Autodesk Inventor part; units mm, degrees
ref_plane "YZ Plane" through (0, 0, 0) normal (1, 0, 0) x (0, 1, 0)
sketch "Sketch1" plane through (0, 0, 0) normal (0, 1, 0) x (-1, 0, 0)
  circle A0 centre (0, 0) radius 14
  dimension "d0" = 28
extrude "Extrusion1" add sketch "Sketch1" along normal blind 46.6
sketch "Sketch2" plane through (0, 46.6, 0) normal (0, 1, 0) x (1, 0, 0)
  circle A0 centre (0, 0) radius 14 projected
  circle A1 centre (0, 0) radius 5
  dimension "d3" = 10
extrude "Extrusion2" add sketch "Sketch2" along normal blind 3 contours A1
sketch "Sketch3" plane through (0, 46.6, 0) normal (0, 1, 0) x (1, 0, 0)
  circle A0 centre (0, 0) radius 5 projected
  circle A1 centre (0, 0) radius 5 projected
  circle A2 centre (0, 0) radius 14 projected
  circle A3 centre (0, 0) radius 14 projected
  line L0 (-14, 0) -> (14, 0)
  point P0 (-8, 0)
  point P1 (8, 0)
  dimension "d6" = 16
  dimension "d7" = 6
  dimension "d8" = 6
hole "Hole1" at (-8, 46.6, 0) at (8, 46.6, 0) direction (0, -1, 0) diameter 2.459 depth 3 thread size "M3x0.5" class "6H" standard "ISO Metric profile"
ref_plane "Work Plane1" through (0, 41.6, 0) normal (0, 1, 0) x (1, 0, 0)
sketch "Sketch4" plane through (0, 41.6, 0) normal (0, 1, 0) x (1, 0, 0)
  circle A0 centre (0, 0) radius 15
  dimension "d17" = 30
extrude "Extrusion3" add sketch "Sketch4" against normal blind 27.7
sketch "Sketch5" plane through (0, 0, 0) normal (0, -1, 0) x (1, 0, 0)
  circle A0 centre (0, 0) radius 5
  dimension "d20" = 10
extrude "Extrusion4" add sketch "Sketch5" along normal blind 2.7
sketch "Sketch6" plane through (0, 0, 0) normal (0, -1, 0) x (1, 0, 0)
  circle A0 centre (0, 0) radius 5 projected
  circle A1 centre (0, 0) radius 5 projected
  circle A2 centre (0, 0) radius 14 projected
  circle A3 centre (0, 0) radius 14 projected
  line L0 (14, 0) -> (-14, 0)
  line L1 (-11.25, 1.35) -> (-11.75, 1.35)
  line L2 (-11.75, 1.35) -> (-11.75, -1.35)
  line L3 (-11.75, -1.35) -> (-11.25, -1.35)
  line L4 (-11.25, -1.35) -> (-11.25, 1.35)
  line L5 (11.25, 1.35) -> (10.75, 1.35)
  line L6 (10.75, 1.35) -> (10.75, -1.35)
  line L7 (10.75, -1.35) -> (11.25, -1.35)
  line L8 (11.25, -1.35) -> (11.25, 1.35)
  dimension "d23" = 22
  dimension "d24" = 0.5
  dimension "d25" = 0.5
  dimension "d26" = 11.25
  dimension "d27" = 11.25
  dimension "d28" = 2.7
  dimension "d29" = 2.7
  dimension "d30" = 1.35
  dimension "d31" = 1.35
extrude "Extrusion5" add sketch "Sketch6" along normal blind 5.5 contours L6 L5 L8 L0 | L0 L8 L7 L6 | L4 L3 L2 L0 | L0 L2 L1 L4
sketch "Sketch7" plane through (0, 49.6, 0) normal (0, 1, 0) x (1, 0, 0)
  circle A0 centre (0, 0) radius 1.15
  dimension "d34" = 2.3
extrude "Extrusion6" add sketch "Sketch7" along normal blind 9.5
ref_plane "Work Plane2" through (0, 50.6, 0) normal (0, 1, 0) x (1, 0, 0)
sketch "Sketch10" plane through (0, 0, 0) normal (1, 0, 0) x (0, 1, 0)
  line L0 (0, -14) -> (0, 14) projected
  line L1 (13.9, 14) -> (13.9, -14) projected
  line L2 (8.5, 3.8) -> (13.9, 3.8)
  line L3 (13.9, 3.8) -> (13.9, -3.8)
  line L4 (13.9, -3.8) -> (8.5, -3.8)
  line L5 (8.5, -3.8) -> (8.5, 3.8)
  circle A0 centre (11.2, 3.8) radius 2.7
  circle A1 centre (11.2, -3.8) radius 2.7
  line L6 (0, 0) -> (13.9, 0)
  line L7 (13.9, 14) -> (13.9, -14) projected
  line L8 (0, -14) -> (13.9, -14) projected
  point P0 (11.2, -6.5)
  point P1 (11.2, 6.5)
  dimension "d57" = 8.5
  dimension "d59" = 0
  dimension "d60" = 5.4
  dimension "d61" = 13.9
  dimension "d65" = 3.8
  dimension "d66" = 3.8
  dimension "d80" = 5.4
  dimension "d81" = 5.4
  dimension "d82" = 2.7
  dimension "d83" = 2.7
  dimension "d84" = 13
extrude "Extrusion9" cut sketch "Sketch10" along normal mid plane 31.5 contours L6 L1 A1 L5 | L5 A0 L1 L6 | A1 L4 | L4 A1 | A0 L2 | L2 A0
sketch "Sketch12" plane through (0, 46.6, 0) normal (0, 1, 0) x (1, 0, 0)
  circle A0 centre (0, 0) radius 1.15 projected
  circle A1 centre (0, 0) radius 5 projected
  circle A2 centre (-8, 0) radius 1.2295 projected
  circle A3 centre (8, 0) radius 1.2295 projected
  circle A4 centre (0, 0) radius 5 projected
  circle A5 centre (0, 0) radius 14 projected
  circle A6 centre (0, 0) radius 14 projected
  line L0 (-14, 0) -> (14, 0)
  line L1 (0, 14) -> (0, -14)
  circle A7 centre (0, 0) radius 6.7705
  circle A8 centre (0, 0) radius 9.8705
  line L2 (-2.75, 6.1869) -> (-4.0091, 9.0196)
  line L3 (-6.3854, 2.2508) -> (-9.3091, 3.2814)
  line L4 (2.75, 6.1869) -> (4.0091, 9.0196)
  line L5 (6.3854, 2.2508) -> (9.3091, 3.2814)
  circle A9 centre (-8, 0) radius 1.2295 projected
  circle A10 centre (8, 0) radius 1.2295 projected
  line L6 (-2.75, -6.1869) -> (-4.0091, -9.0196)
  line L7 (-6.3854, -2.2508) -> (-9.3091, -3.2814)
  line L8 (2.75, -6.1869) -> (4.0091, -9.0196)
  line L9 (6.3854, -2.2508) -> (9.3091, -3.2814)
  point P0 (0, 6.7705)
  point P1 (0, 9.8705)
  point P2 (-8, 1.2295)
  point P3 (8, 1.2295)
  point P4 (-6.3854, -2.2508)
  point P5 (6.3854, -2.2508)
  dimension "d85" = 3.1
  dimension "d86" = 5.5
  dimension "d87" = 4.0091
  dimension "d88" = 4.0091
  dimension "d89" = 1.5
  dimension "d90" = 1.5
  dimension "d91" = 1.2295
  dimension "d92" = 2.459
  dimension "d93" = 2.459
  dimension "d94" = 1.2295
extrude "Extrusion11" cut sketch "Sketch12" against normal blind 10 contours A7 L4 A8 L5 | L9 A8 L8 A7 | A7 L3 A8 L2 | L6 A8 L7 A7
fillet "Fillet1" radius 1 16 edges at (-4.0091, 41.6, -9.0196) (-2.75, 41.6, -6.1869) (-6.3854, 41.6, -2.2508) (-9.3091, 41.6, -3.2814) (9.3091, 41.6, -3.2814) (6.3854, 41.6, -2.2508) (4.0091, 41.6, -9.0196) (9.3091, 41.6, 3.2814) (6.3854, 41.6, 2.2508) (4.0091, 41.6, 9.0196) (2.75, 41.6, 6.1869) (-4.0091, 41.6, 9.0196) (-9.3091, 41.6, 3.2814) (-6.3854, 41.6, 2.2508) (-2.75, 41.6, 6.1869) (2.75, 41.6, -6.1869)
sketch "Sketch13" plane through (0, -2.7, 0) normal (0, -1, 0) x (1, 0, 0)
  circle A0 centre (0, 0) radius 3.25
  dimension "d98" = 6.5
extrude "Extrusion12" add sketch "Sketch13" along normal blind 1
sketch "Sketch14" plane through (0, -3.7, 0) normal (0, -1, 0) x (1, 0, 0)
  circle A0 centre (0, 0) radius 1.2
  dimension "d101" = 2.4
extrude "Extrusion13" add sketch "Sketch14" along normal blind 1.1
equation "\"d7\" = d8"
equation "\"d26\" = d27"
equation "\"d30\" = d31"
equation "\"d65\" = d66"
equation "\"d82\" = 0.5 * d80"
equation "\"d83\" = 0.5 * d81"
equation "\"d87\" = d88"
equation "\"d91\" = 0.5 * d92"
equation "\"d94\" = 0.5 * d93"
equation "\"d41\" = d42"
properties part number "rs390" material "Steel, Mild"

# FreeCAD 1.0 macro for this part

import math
import FreeCAD as App
import Part
import Sketcher

V = App.Vector
Q = App.Units.Quantity


def edges_at(feature, points):
    """Names of the edges that pass closest to the given points."""
    edges = feature.Shape.Edges
    near = lambda p: min(range(len(edges)), key=lambda i: edges[i].distToShape(Part.Vertex(*p))[0])
    return sorted({f"Edge{near(p) + 1}" for p in points})


def add_polygon(sketch, points):
    """Adds a closed chain of lines whose ends are joined by coincident constraints."""
    first, n = sketch.GeometryCount, len(points)
    for a, b in zip(points, points[1:] + points[:1]):
        sketch.addGeometry(Part.LineSegment(App.Vector(*a, 0), App.Vector(*b, 0)), False)
    for i in range(n):
        sketch.addConstraint(Sketcher.Constraint("Coincident", first + i, 2, first + (i + 1) % n, 1))

doc = App.newDocument("Part")
body = doc.addObject("PartDesign::Body", "Body")

# Sketch on XZ plane
sketch1 = body.newObject("Sketcher::SketchObject", "Sketch")
sketch1.AttachmentSupport = (doc.getObject("XZ_Plane"), [""])
sketch1.MapMode = "FlatFace"
sketch1.addGeometry(Part.Circle(V(0, 0, 0), V(0, 0, 1), 14), False)
sketch1.addConstraint([
    Sketcher.Constraint("Coincident", 0, 3, -1, 1),
    Sketcher.Constraint("Diameter", 0, Q("28 mm")),
])
pad1 = body.newObject("PartDesign::Pad", "Pad")
pad1.Profile = sketch1
pad1.Length = 46.6
pad1.Reversed = True

# Sketch on XZ plane
sketch2 = body.newObject("Sketcher::SketchObject", "Sketch001")
sketch2.AttachmentSupport = (doc.getObject("XZ_Plane"), [""])
sketch2.MapMode = "FlatFace"
sketch2.AttachmentOffset = App.Placement(V(0, 0, -46.6), App.Rotation())
sketch2.addGeometry(Part.Circle(V(0, 0, 0), V(0, 0, 1), 5), False)
sketch2.addConstraint([
    Sketcher.Constraint("Coincident", 0, 3, -1, 1),
    Sketcher.Constraint("Diameter", 0, Q("10 mm")),
])
pad2 = body.newObject("PartDesign::Pad", "Pad001")
pad2.Profile = sketch2
pad2.Length = 3
pad2.Reversed = True

# Sketch on XZ plane
sketch3 = body.newObject("Sketcher::SketchObject", "Sketch002")
sketch3.AttachmentSupport = (doc.getObject("XZ_Plane"), [""])
sketch3.MapMode = "FlatFace"
sketch3.AttachmentOffset = App.Placement(V(0, 0, -46.6), App.Rotation())
sketch3.addGeometry([
    Part.Circle(V(-8, 0, 0), V(0, 0, 1), 1.2),
    Part.Circle(V(8, 0, 0), V(0, 0, 1), 1.2),
], False)
sketch3.addConstraint([
    Sketcher.Constraint("Equal", 0, 1),
    Sketcher.Constraint("Symmetric", 0, 3, 1, 3, -1, 1),
    Sketcher.Constraint("PointOnObject", 0, 3, -1),
    Sketcher.Constraint("Diameter", 0, Q("2.459 mm")),
    Sketcher.Constraint("DistanceX", 0, 3, -1, 1, Q("8 mm")),
])
doc.recompute()
hole = body.newObject("PartDesign::Hole", "Hole")
hole.Profile = sketch3
hole.ThreadType = "None"
hole.Diameter = 2.459
hole.DepthType = "Dimension"
hole.Depth = 3
hole.DrillPoint = "Flat"
hole.Reversed = True

# Sketch on XZ plane
sketch4 = body.newObject("Sketcher::SketchObject", "Sketch003")
sketch4.AttachmentSupport = (doc.getObject("XZ_Plane"), [""])
sketch4.MapMode = "FlatFace"
sketch4.AttachmentOffset = App.Placement(V(0, 0, -41.6), App.Rotation())
sketch4.addGeometry(Part.Circle(V(0, 0, 0), V(0, 0, 1), 15), False)
sketch4.addConstraint([
    Sketcher.Constraint("Coincident", 0, 3, -1, 1),
    Sketcher.Constraint("Diameter", 0, Q("30 mm")),
])
pad3 = body.newObject("PartDesign::Pad", "Pad002")
pad3.Profile = sketch4
pad3.Length = 27.7

# Sketch on XZ plane
sketch5 = body.newObject("Sketcher::SketchObject", "Sketch004")
sketch5.AttachmentSupport = (doc.getObject("XZ_Plane"), [""])
sketch5.MapMode = "FlatFace"
sketch5.addGeometry(Part.Circle(V(0, 0, 0), V(0, 0, 1), 5), False)
sketch5.addConstraint([
    Sketcher.Constraint("Coincident", 0, 3, -1, 1),
    Sketcher.Constraint("Diameter", 0, Q("10 mm")),
])
pad4 = body.newObject("PartDesign::Pad", "Pad003")
pad4.Profile = sketch5
pad4.Length = 2.7

# Sketch on XZ plane
sketch6 = body.newObject("Sketcher::SketchObject", "Sketch005")
sketch6.AttachmentSupport = (doc.getObject("XZ_Plane"), [""])
sketch6.MapMode = "FlatFace"
add_polygon(sketch6, [(10.8, 1.4), (10.8, -1.4), (11.2, -1.4), (11.2, 1.4)])  # lines 0-3
add_polygon(sketch6, [(-11.2, -1.4), (-11.2, 1.4), (-11.8, 1.4), (-11.8, -1.4)])  # lines 4-7
sketch6.addConstraint([
    Sketcher.Constraint("Vertical", 0),
    Sketcher.Constraint("Horizontal", 1),
    Sketcher.Constraint("Vertical", 2),
    Sketcher.Constraint("Horizontal", 3),
    Sketcher.Constraint("Vertical", 4),
    Sketcher.Constraint("Horizontal", 5),
    Sketcher.Constraint("Vertical", 6),
    Sketcher.Constraint("Horizontal", 7),
    Sketcher.Constraint("Symmetric", 1, 2, 4, 2, -1, 1),
    Sketcher.Constraint("Horizontal", 3, 2, 4, 2),
    Sketcher.Constraint("Horizontal", 1, 2, 6, 2),
    Sketcher.Constraint("Equal", 3, 5),
    Sketcher.Constraint("DistanceX", 1, 1, 1, 2, Q("0.5 mm")),
    Sketcher.Constraint("DistanceY", 0, 2, 0, 1, Q("2.7 mm")),
    Sketcher.Constraint("DistanceX", 4, 2, 3, 2, Q("22 mm")),
])
pad5 = body.newObject("PartDesign::Pad", "Pad004")
pad5.Profile = sketch6
pad5.Length = 5.5

# Sketch on XZ plane
sketch7 = body.newObject("Sketcher::SketchObject", "Sketch006")
sketch7.AttachmentSupport = (doc.getObject("XZ_Plane"), [""])
sketch7.MapMode = "FlatFace"
sketch7.AttachmentOffset = App.Placement(V(0, 0, -49.6), App.Rotation())
sketch7.addGeometry(Part.Circle(V(0, 0, 0), V(0, 0, 1), 1.1), False)
sketch7.addConstraint([
    Sketcher.Constraint("Coincident", 0, 3, -1, 1),
    Sketcher.Constraint("Diameter", 0, Q("2.3 mm")),
])
pad6 = body.newObject("PartDesign::Pad", "Pad005")
pad6.Profile = sketch7
pad6.Length = 9.5
pad6.Reversed = True

# Sketch on YZ plane
sketch8 = body.newObject("Sketcher::SketchObject", "Sketch007")
sketch8.AttachmentSupport = (doc.getObject("YZ_Plane"), [""])
sketch8.MapMode = "FlatFace"
sketch8.addGeometry([
    Part.LineSegment(V(13.9, -3.8, 0), V(13.9, 3.8, 0)),
    Part.ArcOfCircle(Part.Circle(V(11.2, 3.8, 0), V(0, 0, 1), 2.7), math.radians(0), math.radians(180)),
    Part.LineSegment(V(8.5, 3.8, 0), V(8.5, -3.8, 0)),
    Part.ArcOfCircle(Part.Circle(V(11.2, -3.8, 0), V(0, 0, 1), 2.7), math.radians(180), math.radians(360)),
], False)
sketch8.addConstraint([
    Sketcher.Constraint("Tangent", 0, 2, 1, 1),
    Sketcher.Constraint("Tangent", 1, 2, 2, 1),
    Sketcher.Constraint("Tangent", 2, 2, 3, 1),
    Sketcher.Constraint("Tangent", 3, 2, 0, 1),
    Sketcher.Constraint("Vertical", 0),
    Sketcher.Constraint("Vertical", 2),
    Sketcher.Constraint("Radius", 1, Q("2.7 mm")),
    Sketcher.Constraint("DistanceY", -1, 1, 1, 3, Q("3.8 mm")),
    Sketcher.Constraint("DistanceY", 3, 3, -1, 1, Q("3.8 mm")),
    Sketcher.Constraint("DistanceX", -1, 1, 0, 2, Q("13.9 mm")),
])
pocket1 = body.newObject("PartDesign::Pocket", "Pocket")
pocket1.Profile = sketch8
pocket1.Length = 31.5
pocket1.Midplane = True

# Sketch on XZ plane
sketch9 = body.newObject("Sketcher::SketchObject", "Sketch008")
sketch9.AttachmentSupport = (doc.getObject("XZ_Plane"), [""])
sketch9.MapMode = "FlatFace"
sketch9.AttachmentOffset = App.Placement(V(0, 0, -46.6), App.Rotation())
sketch9.addGeometry([
    Part.ArcOfCircle(Part.Circle(V(0, 0, 0), V(0, 0, 1), 6.8), math.radians(-66), math.radians(-19)),  # 0
    Part.LineSegment(V(6.4, -2.3, 0), V(9.3, -3.3, 0)),  # 1
    Part.ArcOfCircle(Part.Circle(V(0, 0, 0), V(0, 0, 1), 9.9), math.radians(-66), math.radians(-19)),  # 2
    Part.LineSegment(V(4, -9, 0), V(2.8, -6.2, 0)),  # 3
    Part.LineSegment(V(9.3, 3.3, 0), V(6.4, 2.3, 0)),  # 4
    Part.ArcOfCircle(Part.Circle(V(0, 0, 0), V(0, 0, 1), 6.8), math.radians(19), math.radians(66)),  # 5
    Part.LineSegment(V(2.8, 6.2, 0), V(4, 9, 0)),  # 6
    Part.ArcOfCircle(Part.Circle(V(0, 0, 0), V(0, 0, 1), 9.9), math.radians(19), math.radians(66)),  # 7
    Part.ArcOfCircle(Part.Circle(V(0, 0, 0), V(0, 0, 1), 6.8), math.radians(-161), math.radians(-114)),  # 8
    Part.LineSegment(V(-2.8, -6.2, 0), V(-4, -9, 0)),  # 9
    Part.ArcOfCircle(Part.Circle(V(0, 0, 0), V(0, 0, 1), 9.9), math.radians(-161), math.radians(-114)),  # 10
    Part.LineSegment(V(-9.3, -3.3, 0), V(-6.4, -2.3, 0)),  # 11
    Part.LineSegment(V(-4, 9, 0), V(-2.8, 6.2, 0)),  # 12
    Part.ArcOfCircle(Part.Circle(V(0, 0, 0), V(0, 0, 1), 6.8), math.radians(114), math.radians(161)),  # 13
    Part.LineSegment(V(-6.4, 2.3, 0), V(-9.3, 3.3, 0)),  # 14
    Part.ArcOfCircle(Part.Circle(V(0, 0, 0), V(0, 0, 1), 9.9), math.radians(114), math.radians(161)),  # 15
], False)
sketch9.addConstraint([
    Sketcher.Constraint("Coincident", 0, 2, 1, 1),
    Sketcher.Constraint("Coincident", 1, 2, 2, 2),
    Sketcher.Constraint("Coincident", 2, 1, 3, 1),
    Sketcher.Constraint("Coincident", 3, 2, 0, 1),
    Sketcher.Constraint("Coincident", 4, 2, 5, 1),
    Sketcher.Constraint("Coincident", 5, 2, 6, 1),
    Sketcher.Constraint("Coincident", 6, 2, 7, 2),
    Sketcher.Constraint("Coincident", 7, 1, 4, 1),
    Sketcher.Constraint("Coincident", 8, 2, 9, 1),
    Sketcher.Constraint("Coincident", 9, 2, 10, 2),
    Sketcher.Constraint("Coincident", 10, 1, 11, 1),
    Sketcher.Constraint("Coincident", 11, 2, 8, 1),
    Sketcher.Constraint("Coincident", 12, 2, 13, 1),
    Sketcher.Constraint("Coincident", 13, 2, 14, 1),
    Sketcher.Constraint("Coincident", 14, 2, 15, 2),
    Sketcher.Constraint("Coincident", 15, 1, 12, 1),
    Sketcher.Constraint("Coincident", 0, 3, -1, 1),
    Sketcher.Constraint("Coincident", 2, 3, -1, 1),
    Sketcher.Constraint("Coincident", 5, 3, -1, 1),
    Sketcher.Constraint("Coincident", 7, 3, -1, 1),
    Sketcher.Constraint("Coincident", 8, 3, -1, 1),
    Sketcher.Constraint("Coincident", 10, 3, -1, 1),
    Sketcher.Constraint("Coincident", 13, 3, -1, 1),
    Sketcher.Constraint("Coincident", 15, 3, -1, 1),
    Sketcher.Constraint("Equal", 0, 5),
    Sketcher.Constraint("Equal", 2, 7),
    Sketcher.Constraint("Equal", 5, 8),
    Sketcher.Constraint("Equal", 7, 10),
    Sketcher.Constraint("Equal", 8, 13),
    Sketcher.Constraint("Equal", 10, 15),
    Sketcher.Constraint("Parallel", 6, 9),
    Sketcher.Constraint("Parallel", 4, 11),
    Sketcher.Constraint("Parallel", 3, 12),
    Sketcher.Constraint("Parallel", 1, 14),
    Sketcher.Constraint("Horizontal", 3, 2, 8, 2),
    Sketcher.Constraint("Horizontal", 2, 1, 9, 2),
    Sketcher.Constraint("Horizontal", 1, 2, 10, 1),
    Sketcher.Constraint("Horizontal", 0, 2, 11, 2),
    Sketcher.Constraint("Horizontal", 5, 2, 12, 2),
    Sketcher.Constraint("Horizontal", 4, 2, 13, 2),
    Sketcher.Constraint("Vertical", 0, 2, 4, 2),
    Sketcher.Constraint("Vertical", 3, 2, 5, 2),
    Sketcher.Constraint("Distance", 1, Q("3.1 mm")),
    Sketcher.Constraint("DistanceX", 8, 2, 3, 2, Q("5.5 mm")),
    Sketcher.Constraint("DistanceX", -1, 1, 2, 1, Q("4.009 mm")),
    Sketcher.Constraint("Radius", 0, Q("6.7705 mm")),
    Sketcher.Constraint("DistanceX", 2, 1, 1, 2, Q("5.3 mm")),
    Sketcher.Constraint("DistanceY", 3, 2, 0, 2, Q("3.936 mm")),
])
pocket2 = body.newObject("PartDesign::Pocket", "Pocket001")
pocket2.Profile = sketch9
pocket2.Length = 10
pocket2.Reversed = True
doc.recompute()

fillet = body.newObject("PartDesign::Fillet", "Fillet")
fillet.Base = (pocket2, edges_at(pocket2, [
    (-4.009, 41.6, -9.02),
    (-2.75, 41.6, -6.187),
    (-6.385, 41.6, -2.251),
    (-9.309, 41.6, -3.281),
    (9.309, 41.6, -3.281),
    (6.385, 41.6, -2.251),
    (4.009, 41.6, -9.02),
    (9.309, 41.6, 3.281),
    (6.385, 41.6, 2.251),
    (4.009, 41.6, 9.02),
    (2.75, 41.6, 6.187),
    (-4.009, 41.6, 9.02),
    (-9.309, 41.6, 3.281),
    (-6.385, 41.6, 2.251),
    (-2.75, 41.6, 6.187),
    (2.75, 41.6, -6.187),
]))
fillet.Radius = 1

# Sketch on XZ plane
sketch10 = body.newObject("Sketcher::SketchObject", "Sketch009")
sketch10.AttachmentSupport = (doc.getObject("XZ_Plane"), [""])
sketch10.MapMode = "FlatFace"
sketch10.AttachmentOffset = App.Placement(V(0, 0, 2.7), App.Rotation())
sketch10.addGeometry(Part.Circle(V(0, 0, 0), V(0, 0, 1), 3.2), False)
sketch10.addConstraint([
    Sketcher.Constraint("Coincident", 0, 3, -1, 1),
    Sketcher.Constraint("Diameter", 0, Q("6.5 mm")),
])
pad7 = body.newObject("PartDesign::Pad", "Pad006")
pad7.Profile = sketch10
pad7.Length = 1

# Sketch on XZ plane
sketch11 = body.newObject("Sketcher::SketchObject", "Sketch010")
sketch11.AttachmentSupport = (doc.getObject("XZ_Plane"), [""])
sketch11.MapMode = "FlatFace"
sketch11.AttachmentOffset = App.Placement(V(0, 0, 3.7), App.Rotation())
sketch11.addGeometry(Part.Circle(V(0, 0, 0), V(0, 0, 1), 1.2), False)
sketch11.addConstraint([
    Sketcher.Constraint("Coincident", 0, 3, -1, 1),
    Sketcher.Constraint("Diameter", 0, Q("2.4 mm")),
])
pad8 = body.newObject("PartDesign::Pad", "Pad007")
pad8.Profile = sketch11
pad8.Length = 1.1

doc.recompute()
